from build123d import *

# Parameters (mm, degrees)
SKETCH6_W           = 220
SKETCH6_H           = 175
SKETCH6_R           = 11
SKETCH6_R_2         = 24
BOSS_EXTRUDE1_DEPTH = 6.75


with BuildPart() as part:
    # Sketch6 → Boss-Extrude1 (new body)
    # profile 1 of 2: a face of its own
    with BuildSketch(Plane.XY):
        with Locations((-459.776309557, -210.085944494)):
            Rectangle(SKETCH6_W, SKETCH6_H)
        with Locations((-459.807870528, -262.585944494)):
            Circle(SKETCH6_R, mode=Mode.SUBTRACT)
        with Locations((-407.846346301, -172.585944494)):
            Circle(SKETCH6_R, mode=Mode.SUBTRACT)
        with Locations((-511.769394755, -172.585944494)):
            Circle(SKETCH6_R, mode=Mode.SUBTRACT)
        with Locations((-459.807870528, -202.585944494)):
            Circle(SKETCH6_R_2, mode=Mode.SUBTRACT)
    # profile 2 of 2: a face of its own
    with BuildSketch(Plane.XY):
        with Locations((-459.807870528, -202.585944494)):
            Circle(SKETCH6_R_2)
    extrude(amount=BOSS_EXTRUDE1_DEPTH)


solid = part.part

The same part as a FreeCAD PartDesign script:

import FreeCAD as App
import Part
import Sketcher
from FreeCAD import Vector
Q = App.Units.Quantity


def add_polygon(sketch, points):
    """Adds a closed chain of lines whose ends are joined by coincident constraints."""
    first, n = sketch.GeometryCount, len(points)
    for a, b in zip(points, points[1:] + points[:1]):
        sketch.addGeometry(Part.LineSegment(App.Vector(*a, 0), App.Vector(*b, 0)), False)
    for i in range(n):
        sketch.addConstraint(Sketcher.Constraint("Coincident", first + i, 2, first + (i + 1) % n, 1))

doc = App.newDocument("Part")
body = doc.addObject("PartDesign::Body", "Body")

# Sketch on XY plane
sketch1 = doc.addObject("Sketcher::SketchObject", "Sketch")
body.addObject(sketch1)
sketch1.AttachmentSupport = (doc.XY_Plane, [""])
sketch1.MapMode = "FlatFace"
add_polygon(sketch1, [(-570, -123), (-570, -298), (-350, -298), (-350, -123)])  # lines 0-3
sketch1.addGeometry(Part.Circle(Vector(-460, -263, 0), Vector(0, 0, 1), 11), False)  # 4
sketch1.addGeometry(Part.Circle(Vector(-512, -173, 0), Vector(0, 0, 1), 11), False)  # 5
sketch1.addGeometry(Part.Circle(Vector(-408, -173, 0), Vector(0, 0, 1), 11), False)  # 6
sketch1.addConstraint([
    Sketcher.Constraint("Vertical", 0),
    Sketcher.Constraint("Horizontal", 1),
    Sketcher.Constraint("Vertical", 2),
    Sketcher.Constraint("Horizontal", 3),
    Sketcher.Constraint("Equal", 4, 5),
    Sketcher.Constraint("Equal", 5, 6),
    Sketcher.Constraint("Horizontal", 5, 3, 6, 3),
    Sketcher.Constraint("Diameter", 4, Q("22 mm")),
    Sketcher.Constraint("DistanceX", 1, 1, 1, 2, Q("220 mm")),
    Sketcher.Constraint("DistanceY", 0, 2, 0, 1, Q("175 mm")),
    Sketcher.Constraint("DistanceY", 4, 3, 5, 3, Q("90 mm")),
    Sketcher.Constraint("DistanceY", 0, 2, 4, 3, Q("35 mm")),
    Sketcher.Constraint("DistanceX", 4, 3, -1, 1, Q("459.807871 mm")),
    Sketcher.Constraint("DistanceX", 0, 2, -1, 1, Q("569.77631 mm")),
    Sketcher.Constraint("DistanceX", 5, 3, 6, 3, Q("103.923048 mm")),
    Sketcher.Constraint("DistanceY", 4, 3, -1, 1, Q("262.585944 mm")),
    Sketcher.Constraint("DistanceX", 5, 3, -1, 1, Q("511.769395 mm")),
])
pad1 = doc.addObject("PartDesign::Pad", "Pad")
body.addObject(pad1)
pad1.Profile = sketch1
pad1.Length = 6.75

doc.recompute()
